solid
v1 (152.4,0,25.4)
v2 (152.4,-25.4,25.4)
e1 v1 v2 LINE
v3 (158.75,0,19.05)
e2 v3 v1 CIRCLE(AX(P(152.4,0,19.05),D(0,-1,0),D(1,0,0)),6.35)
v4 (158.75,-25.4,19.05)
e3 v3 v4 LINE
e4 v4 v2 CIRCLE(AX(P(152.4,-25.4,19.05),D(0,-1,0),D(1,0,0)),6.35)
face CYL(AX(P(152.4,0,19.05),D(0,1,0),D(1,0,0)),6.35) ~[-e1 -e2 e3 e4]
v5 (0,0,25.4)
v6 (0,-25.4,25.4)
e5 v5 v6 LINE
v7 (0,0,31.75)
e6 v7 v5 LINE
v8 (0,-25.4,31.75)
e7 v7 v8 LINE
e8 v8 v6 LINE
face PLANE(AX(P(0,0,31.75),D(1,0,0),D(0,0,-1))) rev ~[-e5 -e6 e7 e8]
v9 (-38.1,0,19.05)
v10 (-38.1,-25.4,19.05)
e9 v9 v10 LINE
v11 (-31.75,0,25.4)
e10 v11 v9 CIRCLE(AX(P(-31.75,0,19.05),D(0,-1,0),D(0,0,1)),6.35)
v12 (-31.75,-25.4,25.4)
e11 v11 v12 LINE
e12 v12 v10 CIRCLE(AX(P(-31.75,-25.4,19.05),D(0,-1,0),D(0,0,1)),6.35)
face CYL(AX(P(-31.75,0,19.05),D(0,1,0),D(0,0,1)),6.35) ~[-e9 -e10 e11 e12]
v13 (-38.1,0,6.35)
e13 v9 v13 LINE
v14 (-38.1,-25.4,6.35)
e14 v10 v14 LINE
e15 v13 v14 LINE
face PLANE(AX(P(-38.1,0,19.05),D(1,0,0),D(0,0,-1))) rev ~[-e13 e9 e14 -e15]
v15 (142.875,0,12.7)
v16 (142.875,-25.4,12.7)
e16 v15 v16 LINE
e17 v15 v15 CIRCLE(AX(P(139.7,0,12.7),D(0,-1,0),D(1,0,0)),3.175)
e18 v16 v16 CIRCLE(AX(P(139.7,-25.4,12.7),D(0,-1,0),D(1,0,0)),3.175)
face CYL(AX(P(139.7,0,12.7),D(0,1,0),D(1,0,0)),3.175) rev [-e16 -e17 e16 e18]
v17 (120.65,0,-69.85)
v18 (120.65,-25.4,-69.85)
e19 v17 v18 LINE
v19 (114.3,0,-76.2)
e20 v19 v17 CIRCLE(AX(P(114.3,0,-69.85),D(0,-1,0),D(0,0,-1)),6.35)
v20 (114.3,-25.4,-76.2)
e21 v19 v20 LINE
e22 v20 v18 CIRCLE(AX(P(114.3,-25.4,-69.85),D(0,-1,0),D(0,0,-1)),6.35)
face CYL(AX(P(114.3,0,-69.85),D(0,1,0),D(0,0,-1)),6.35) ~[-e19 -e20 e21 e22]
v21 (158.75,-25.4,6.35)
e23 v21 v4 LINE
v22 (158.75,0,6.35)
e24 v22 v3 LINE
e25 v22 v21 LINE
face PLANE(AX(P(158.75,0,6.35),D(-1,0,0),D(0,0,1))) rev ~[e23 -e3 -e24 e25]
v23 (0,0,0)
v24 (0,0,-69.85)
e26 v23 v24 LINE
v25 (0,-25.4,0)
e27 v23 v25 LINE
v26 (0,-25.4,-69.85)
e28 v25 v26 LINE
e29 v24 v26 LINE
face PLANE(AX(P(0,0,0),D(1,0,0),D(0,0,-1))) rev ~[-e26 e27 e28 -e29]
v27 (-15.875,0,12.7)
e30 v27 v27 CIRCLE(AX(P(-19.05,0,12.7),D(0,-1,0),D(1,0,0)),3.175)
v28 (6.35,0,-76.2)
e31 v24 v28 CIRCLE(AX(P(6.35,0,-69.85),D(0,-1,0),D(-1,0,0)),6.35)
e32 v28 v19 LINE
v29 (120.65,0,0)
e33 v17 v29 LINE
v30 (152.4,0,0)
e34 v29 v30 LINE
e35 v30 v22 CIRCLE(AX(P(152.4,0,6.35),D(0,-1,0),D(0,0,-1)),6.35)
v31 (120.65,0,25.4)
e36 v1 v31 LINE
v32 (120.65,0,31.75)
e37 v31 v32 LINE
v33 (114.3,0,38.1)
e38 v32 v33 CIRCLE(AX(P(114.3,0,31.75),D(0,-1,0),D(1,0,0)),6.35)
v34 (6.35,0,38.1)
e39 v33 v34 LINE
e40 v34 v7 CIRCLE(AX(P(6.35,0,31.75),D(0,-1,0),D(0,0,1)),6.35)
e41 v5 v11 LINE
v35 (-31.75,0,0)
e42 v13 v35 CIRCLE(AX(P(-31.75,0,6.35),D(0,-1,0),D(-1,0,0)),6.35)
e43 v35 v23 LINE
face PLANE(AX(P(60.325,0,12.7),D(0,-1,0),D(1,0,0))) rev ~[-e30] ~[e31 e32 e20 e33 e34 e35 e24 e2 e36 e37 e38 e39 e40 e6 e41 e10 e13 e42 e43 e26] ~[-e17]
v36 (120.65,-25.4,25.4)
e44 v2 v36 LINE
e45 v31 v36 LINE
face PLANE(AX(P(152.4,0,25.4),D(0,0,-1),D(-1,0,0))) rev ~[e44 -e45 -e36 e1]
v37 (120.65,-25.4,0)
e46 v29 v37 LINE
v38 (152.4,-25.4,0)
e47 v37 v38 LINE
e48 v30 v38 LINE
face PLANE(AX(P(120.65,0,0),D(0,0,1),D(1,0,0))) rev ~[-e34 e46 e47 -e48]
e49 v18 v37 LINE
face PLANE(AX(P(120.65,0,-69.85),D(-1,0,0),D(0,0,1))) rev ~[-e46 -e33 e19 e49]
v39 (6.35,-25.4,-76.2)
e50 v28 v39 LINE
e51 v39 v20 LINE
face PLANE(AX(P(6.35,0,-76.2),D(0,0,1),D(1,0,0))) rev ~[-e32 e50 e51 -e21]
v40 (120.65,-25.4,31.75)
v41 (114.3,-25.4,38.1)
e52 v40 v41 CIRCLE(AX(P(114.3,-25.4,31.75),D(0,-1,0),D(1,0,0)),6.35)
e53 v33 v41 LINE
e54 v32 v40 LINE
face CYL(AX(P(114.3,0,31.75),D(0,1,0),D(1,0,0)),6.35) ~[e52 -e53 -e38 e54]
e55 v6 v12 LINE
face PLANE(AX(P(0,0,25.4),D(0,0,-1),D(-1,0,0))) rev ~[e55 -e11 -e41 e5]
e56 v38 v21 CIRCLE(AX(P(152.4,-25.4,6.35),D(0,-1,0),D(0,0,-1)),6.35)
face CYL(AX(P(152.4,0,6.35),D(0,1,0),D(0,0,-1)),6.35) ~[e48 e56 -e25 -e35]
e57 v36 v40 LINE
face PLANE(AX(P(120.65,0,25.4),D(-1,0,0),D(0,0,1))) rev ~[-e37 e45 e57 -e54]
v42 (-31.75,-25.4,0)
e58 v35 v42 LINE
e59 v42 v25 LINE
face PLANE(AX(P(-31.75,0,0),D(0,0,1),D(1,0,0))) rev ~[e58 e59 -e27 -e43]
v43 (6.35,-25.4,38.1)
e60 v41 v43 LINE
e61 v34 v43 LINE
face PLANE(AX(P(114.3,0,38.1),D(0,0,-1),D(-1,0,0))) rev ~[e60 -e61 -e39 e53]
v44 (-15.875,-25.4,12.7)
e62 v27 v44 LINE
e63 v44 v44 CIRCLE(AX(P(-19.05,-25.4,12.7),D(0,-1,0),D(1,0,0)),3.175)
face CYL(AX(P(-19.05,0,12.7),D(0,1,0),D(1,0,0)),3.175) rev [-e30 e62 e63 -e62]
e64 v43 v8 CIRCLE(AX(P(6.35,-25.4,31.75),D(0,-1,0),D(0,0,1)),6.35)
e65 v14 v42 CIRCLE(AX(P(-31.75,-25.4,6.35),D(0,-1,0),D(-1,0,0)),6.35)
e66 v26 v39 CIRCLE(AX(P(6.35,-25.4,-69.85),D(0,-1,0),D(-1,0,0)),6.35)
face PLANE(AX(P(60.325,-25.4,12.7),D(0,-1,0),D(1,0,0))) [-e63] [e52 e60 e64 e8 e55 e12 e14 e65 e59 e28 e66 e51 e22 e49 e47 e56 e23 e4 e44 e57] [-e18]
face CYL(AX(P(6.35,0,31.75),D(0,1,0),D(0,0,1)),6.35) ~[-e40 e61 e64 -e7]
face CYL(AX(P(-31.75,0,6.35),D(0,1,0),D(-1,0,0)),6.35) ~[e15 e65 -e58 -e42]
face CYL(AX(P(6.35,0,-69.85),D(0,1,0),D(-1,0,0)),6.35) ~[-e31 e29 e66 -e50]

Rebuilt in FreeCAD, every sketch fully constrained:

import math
import FreeCAD as App
import Part
import Sketcher
Q = App.Units.Quantity

doc = App.newDocument("Part")
body = doc.addObject("PartDesign::Body", "Body")

# Sketch on XZ plane
sketch1 = body.newObject("Sketcher::SketchObject", "Sketch")
sketch1.AttachmentSupport = (doc.getObject("XZ_Plane"), [""])
sketch1.MapMode = "FlatFace"
sketch1.addGeometry([
    Part.LineSegment(App.Vector(0, 0, 0), App.Vector(0, -69.85, 0)),  # 0
    Part.ArcOfCircle(Part.Circle(App.Vector(6.35, -69.85, 0), App.Vector(0, 0, 1), 6.35), math.radians(180), math.radians(270)),  # 1
    Part.LineSegment(App.Vector(6.35, -76.2, 0), App.Vector(114.3, -76.2, 0)),  # 2
    Part.ArcOfCircle(Part.Circle(App.Vector(114.3, -69.85, 0), App.Vector(0, 0, 1), 6.35), math.radians(-90), math.radians(0)),  # 3
    Part.LineSegment(App.Vector(120.65, -69.85, 0), App.Vector(120.65, 0, 0)),  # 4
    Part.LineSegment(App.Vector(120.65, 0, 0), App.Vector(152.4, 0, 0)),  # 5
    Part.ArcOfCircle(Part.Circle(App.Vector(152.4, 6.35, 0), App.Vector(0, 0, 1), 6.35), math.radians(-90), math.radians(0)),  # 6
    Part.LineSegment(App.Vector(158.75, 6.35, 0), App.Vector(158.75, 19.05, 0)),  # 7
    Part.ArcOfCircle(Part.Circle(App.Vector(152.4, 19.05, 0), App.Vector(0, 0, 1), 6.35), math.radians(0), math.radians(90)),  # 8
    Part.LineSegment(App.Vector(152.4, 25.4, 0), App.Vector(120.65, 25.4, 0)),  # 9
    Part.LineSegment(App.Vector(120.65, 25.4, 0), App.Vector(120.65, 31.75, 0)),  # 10
    Part.ArcOfCircle(Part.Circle(App.Vector(114.3, 31.75, 0), App.Vector(0, 0, 1), 6.35), math.radians(0), math.radians(90)),  # 11
    Part.LineSegment(App.Vector(114.3, 38.1, 0), App.Vector(6.35, 38.1, 0)),  # 12
    Part.ArcOfCircle(Part.Circle(App.Vector(6.35, 31.75, 0), App.Vector(0, 0, 1), 6.35), math.radians(90), math.radians(180)),  # 13
    Part.LineSegment(App.Vector(0, 31.75, 0), App.Vector(0, 25.4, 0)),  # 14
    Part.LineSegment(App.Vector(0, 25.4, 0), App.Vector(-31.75, 25.4, 0)),  # 15
    Part.ArcOfCircle(Part.Circle(App.Vector(-31.75, 19.05, 0), App.Vector(0, 0, 1), 6.35), math.radians(90), math.radians(180)),  # 16
    Part.LineSegment(App.Vector(-38.1, 19.05, 0), App.Vector(-38.1, 6.35, 0)),  # 17
    Part.ArcOfCircle(Part.Circle(App.Vector(-31.75, 6.35, 0), App.Vector(0, 0, 1), 6.35), math.radians(180), math.radians(270)),  # 18
    Part.LineSegment(App.Vector(-31.75, 0, 0), App.Vector(0, 0, 0)),  # 19
    Part.Circle(App.Vector(-19.05, 12.7, 0), App.Vector(0, 0, 1), 3.175),  # 20
    Part.Circle(App.Vector(139.7, 12.7, 0), App.Vector(0, 0, 1), 3.175),  # 21
], False)
sketch1.addConstraint([
    Sketcher.Constraint("Tangent", 0, 2, 1, 1),
    Sketcher.Constraint("Tangent", 1, 2, 2, 1),
    Sketcher.Constraint("Tangent", 2, 2, 3, 1),
    Sketcher.Constraint("Tangent", 3, 2, 4, 1),
    Sketcher.Constraint("Coincident", 4, 2, 5, 1),
    Sketcher.Constraint("Tangent", 5, 2, 6, 1),
    Sketcher.Constraint("Tangent", 6, 2, 7, 1),
    Sketcher.Constraint("Tangent", 7, 2, 8, 1),
    Sketcher.Constraint("Tangent", 8, 2, 9, 1),
    Sketcher.Constraint("Coincident", 9, 2, 10, 1),
    Sketcher.Constraint("Tangent", 10, 2, 11, 1),
    Sketcher.Constraint("Tangent", 11, 2, 12, 1),
    Sketcher.Constraint("Tangent", 12, 2, 13, 1),
    Sketcher.Constraint("Tangent", 13, 2, 14, 1),
    Sketcher.Constraint("Coincident", 14, 2, 15, 1),
    Sketcher.Constraint("Tangent", 15, 2, 16, 1),
    Sketcher.Constraint("Tangent", 16, 2, 17, 1),
    Sketcher.Constraint("Tangent", 17, 2, 18, 1),
    Sketcher.Constraint("Tangent", 18, 2, 19, 1),
    Sketcher.Constraint("Coincident", 19, 2, 0, 1),
    Sketcher.Constraint("Vertical", 0),
    Sketcher.Constraint("Horizontal", 2),
    Sketcher.Constraint("Vertical", 4),
    Sketcher.Constraint("Horizontal", 5),
    Sketcher.Constraint("Vertical", 7),
    Sketcher.Constraint("Horizontal", 9),
    Sketcher.Constraint("Vertical", 10),
    Sketcher.Constraint("Horizontal", 12),
    Sketcher.Constraint("Vertical", 14),
    Sketcher.Constraint("Horizontal", 15),
    Sketcher.Constraint("Vertical", 17),
    Sketcher.Constraint("Horizontal", 19),
    Sketcher.Constraint("Coincident", 19, 2, -1, 1),
    Sketcher.Constraint("Equal", 1, 3),
    Sketcher.Constraint("Equal", 3, 6),
    Sketcher.Constraint("Equal", 6, 8),
    Sketcher.Constraint("Equal", 8, 11),
    Sketcher.Constraint("Equal", 11, 13),
    Sketcher.Constraint("Equal", 13, 16),
    Sketcher.Constraint("Equal", 16, 18),
    Sketcher.Constraint("Equal", 20, 21),
    Sketcher.Constraint("PointOnObject", 4, 2, -1),
    Sketcher.Constraint("PointOnObject", 13, 2, -2),
    Sketcher.Constraint("Horizontal", 8, 3, 16, 3),
    Sketcher.Constraint("Horizontal", 20, 3, 21, 3),
    Sketcher.Constraint("Vertical", 3, 3, 11, 3),
    Sketcher.Constraint("Equal", 9, 15),
    Sketcher.Constraint("Diameter", 20, Q("0.25 in")),
    Sketcher.Constraint("Radius", 1, Q("0.25 in")),
    Sketcher.Constraint("DistanceY", 7, 1, 7, 2, Q("0.5 in")),
    Sketcher.Constraint("DistanceX", -1, 1, 6, 3, Q("6 in")),
    Sketcher.Constraint("DistanceY", 1, 2, -1, 1, Q("3 in")),
    Sketcher.Constraint("DistanceY", 6, 3, 11, 3, Q("1 in")),
    Sketcher.Constraint("DistanceX", 20, 3, 13, 3, Q("1 in")),
    Sketcher.Constraint("DistanceX", 11, 3, 21, 3, Q("1 in")),
    Sketcher.Constraint("DistanceY", 21, 3, 11, 2, Q("1 in")),
    Sketcher.Constraint("DistanceX", 2, 1, 2, 2, Q("4.25 in")),
])
pad1 = body.newObject("PartDesign::Pad", "Pad")
pad1.Profile = sketch1
pad1.Length = Q("1 in")

doc.recompute()
